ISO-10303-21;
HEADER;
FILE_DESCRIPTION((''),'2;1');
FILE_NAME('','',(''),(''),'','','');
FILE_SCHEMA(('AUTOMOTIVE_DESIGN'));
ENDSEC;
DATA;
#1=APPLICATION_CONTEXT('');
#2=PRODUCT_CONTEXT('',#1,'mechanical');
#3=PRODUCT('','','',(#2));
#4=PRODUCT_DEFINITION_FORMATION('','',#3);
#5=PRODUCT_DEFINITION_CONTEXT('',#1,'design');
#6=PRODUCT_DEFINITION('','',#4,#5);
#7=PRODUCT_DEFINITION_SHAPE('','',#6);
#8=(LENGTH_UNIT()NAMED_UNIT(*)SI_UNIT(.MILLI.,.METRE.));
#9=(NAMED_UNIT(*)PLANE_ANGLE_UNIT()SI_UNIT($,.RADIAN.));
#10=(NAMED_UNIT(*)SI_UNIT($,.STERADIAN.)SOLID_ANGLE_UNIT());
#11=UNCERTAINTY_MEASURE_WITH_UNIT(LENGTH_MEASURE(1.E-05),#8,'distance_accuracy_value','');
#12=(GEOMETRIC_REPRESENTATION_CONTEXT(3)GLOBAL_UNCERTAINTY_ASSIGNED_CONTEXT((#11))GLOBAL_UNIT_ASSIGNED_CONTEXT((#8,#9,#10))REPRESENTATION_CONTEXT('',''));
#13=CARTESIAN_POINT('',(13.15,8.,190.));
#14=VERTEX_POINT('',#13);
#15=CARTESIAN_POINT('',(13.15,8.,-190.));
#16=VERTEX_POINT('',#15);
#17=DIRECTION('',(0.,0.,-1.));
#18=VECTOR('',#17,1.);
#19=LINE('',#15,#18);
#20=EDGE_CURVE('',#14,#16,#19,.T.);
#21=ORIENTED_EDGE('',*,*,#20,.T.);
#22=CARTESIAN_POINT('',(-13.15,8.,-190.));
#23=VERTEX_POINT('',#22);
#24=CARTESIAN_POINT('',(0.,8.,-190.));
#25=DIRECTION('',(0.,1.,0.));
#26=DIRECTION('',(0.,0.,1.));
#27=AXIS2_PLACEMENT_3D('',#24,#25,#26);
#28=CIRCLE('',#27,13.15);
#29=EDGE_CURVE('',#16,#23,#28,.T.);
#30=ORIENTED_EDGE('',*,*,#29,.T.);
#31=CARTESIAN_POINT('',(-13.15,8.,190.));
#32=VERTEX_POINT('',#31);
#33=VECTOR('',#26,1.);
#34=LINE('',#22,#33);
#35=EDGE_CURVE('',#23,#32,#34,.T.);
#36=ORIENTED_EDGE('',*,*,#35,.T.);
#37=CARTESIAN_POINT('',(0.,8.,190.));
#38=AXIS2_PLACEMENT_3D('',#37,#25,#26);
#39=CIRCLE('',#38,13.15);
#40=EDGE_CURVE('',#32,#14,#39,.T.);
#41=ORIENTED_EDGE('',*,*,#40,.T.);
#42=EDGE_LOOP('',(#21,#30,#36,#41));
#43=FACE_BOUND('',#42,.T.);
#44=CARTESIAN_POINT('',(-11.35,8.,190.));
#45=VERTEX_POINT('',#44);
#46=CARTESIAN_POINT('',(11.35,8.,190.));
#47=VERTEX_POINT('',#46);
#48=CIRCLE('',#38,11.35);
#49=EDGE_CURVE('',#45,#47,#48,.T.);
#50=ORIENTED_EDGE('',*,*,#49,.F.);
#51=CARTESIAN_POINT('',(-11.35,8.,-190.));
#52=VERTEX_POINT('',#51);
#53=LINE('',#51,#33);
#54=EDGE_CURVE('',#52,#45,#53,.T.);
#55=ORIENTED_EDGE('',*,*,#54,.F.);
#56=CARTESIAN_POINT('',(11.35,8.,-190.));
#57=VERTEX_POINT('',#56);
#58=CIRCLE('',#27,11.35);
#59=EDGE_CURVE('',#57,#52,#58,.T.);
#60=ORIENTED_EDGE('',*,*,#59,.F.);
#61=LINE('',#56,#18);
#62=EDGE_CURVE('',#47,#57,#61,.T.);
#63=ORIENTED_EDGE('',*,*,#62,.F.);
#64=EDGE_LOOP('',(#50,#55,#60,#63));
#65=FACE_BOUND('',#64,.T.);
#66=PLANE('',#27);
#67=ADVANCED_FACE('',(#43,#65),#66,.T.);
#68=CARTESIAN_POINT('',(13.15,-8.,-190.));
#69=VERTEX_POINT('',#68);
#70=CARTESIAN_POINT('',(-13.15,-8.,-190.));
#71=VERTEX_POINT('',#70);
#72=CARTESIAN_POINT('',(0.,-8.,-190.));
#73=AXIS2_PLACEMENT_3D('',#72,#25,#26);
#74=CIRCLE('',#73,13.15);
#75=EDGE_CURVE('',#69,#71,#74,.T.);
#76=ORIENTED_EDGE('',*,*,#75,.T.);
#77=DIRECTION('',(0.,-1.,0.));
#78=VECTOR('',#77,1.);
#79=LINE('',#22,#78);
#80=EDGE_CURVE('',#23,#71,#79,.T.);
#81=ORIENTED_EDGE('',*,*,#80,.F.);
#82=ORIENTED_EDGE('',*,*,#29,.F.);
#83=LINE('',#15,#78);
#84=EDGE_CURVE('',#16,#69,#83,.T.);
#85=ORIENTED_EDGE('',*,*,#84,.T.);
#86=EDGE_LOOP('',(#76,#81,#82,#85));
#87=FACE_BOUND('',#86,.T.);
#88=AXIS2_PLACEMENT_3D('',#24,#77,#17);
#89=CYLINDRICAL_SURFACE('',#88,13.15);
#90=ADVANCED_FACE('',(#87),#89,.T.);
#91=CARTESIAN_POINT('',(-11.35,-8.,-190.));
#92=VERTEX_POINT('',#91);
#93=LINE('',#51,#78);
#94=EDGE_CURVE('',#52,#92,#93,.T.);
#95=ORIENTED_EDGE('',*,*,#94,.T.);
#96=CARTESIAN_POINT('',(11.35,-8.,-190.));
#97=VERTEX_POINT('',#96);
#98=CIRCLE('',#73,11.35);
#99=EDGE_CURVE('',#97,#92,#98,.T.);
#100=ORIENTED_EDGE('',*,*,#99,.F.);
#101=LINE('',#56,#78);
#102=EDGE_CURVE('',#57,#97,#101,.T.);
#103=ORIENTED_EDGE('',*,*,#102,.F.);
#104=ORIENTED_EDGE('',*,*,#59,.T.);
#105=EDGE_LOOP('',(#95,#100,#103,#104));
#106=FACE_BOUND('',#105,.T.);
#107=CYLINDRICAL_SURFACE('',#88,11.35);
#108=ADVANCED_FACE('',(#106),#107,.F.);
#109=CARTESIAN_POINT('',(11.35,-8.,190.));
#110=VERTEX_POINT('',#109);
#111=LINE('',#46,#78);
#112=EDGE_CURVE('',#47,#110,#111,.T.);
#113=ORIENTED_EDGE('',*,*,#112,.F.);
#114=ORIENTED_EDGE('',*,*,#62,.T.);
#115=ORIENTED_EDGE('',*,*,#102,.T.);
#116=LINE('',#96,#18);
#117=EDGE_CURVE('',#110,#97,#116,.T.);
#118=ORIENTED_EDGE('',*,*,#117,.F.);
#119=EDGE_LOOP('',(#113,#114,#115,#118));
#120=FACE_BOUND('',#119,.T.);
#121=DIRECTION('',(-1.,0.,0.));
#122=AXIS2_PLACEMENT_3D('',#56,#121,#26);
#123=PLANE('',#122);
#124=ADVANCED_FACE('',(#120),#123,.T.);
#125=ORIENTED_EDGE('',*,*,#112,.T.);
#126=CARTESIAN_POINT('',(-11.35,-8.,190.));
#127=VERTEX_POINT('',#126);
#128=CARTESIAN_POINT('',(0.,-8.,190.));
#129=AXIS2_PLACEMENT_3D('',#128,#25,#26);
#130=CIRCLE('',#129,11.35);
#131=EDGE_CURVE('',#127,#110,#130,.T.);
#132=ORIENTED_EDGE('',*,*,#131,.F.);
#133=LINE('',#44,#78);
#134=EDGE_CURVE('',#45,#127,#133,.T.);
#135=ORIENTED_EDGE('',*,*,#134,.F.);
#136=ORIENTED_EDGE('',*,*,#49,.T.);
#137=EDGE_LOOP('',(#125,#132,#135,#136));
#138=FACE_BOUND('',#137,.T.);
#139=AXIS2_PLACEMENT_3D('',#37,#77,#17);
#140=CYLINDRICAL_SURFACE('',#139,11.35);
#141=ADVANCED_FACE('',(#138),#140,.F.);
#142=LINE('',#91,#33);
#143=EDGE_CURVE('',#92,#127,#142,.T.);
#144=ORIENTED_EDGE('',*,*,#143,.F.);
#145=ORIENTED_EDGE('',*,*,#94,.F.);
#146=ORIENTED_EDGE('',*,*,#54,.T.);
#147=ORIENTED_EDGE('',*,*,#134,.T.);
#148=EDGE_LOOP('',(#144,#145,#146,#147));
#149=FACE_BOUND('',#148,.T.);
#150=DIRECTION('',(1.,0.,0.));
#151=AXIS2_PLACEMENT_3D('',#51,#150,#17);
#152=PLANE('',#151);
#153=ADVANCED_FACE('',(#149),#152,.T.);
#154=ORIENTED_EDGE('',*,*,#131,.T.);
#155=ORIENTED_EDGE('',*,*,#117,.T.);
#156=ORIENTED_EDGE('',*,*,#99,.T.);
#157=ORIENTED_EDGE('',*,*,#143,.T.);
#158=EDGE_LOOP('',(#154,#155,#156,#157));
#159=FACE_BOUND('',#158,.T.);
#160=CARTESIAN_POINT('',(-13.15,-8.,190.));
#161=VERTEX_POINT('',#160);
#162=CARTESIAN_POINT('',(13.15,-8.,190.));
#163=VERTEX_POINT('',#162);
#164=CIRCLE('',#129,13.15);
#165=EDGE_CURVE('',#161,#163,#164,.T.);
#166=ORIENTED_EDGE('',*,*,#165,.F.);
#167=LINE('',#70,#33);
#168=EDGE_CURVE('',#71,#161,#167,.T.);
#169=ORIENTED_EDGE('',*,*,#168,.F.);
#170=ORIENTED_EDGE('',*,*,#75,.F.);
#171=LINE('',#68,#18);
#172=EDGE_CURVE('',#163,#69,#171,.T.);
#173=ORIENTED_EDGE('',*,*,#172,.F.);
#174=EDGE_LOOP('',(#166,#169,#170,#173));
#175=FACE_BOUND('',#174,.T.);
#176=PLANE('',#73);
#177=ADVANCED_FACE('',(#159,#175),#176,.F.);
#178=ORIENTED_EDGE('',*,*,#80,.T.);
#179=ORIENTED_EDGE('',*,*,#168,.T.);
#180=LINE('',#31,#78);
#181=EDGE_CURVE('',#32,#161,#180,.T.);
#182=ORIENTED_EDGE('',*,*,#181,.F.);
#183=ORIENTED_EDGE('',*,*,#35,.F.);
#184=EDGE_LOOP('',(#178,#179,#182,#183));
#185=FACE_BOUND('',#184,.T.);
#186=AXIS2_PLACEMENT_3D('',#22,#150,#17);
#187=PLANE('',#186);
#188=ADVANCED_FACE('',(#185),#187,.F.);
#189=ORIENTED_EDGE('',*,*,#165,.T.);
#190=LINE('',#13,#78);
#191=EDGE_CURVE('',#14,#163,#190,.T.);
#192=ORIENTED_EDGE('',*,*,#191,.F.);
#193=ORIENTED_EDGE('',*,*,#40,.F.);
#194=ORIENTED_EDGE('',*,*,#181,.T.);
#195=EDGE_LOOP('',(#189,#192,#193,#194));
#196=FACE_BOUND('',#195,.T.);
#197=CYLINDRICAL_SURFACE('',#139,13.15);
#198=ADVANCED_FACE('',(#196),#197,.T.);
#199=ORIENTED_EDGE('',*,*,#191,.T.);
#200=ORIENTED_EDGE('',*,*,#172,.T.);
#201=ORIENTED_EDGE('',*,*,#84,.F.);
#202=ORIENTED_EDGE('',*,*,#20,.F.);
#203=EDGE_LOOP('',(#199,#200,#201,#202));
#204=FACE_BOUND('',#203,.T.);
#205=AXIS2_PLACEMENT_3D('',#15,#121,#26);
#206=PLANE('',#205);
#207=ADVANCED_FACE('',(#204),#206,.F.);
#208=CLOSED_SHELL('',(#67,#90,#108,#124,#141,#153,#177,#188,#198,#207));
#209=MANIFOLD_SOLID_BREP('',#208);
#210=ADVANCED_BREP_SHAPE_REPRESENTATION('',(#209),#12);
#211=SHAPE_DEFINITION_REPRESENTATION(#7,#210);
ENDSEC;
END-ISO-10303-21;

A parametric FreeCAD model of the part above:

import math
import FreeCAD as App
import Part
import Sketcher
from FreeCAD import Vector
Q = App.Units.Quantity

doc = App.newDocument("Part")
body = doc.addObject("PartDesign::Body", "Body")

# Sketch on XZ plane
sketch1 = doc.addObject("Sketcher::SketchObject", "Sketch")
body.addObject(sketch1)
sketch1.AttachmentSupport = (doc.XZ_Plane, [""])
sketch1.MapMode = "FlatFace"
sketch1.addGeometry(Part.LineSegment(Vector(13, 190, 0), Vector(13, -190, 0)), False)
sketch1.addGeometry(Part.ArcOfCircle(Part.Circle(Vector(0, -190, 0), Vector(0, 0, 1), 13), math.radians(180), math.radians(360)), False)
sketch1.addGeometry(Part.LineSegment(Vector(-13, -190, 0), Vector(-13, 190, 0)), False)
sketch1.addGeometry(Part.ArcOfCircle(Part.Circle(Vector(0, 190, 0), Vector(0, 0, 1), 13), math.radians(0), math.radians(180)), False)
sketch1.addGeometry(Part.LineSegment(Vector(11, -190, 0), Vector(11, 190, 0)), False)
sketch1.addGeometry(Part.ArcOfCircle(Part.Circle(Vector(0, 190, 0), Vector(0, 0, 1), 11), math.radians(0), math.radians(180)), False)
sketch1.addGeometry(Part.LineSegment(Vector(-11, 190, 0), Vector(-11, -190, 0)), False)
sketch1.addGeometry(Part.ArcOfCircle(Part.Circle(Vector(0, -190, 0), Vector(0, 0, 1), 11), math.radians(180), math.radians(360)), False)
sketch1.addConstraint(Sketcher.Constraint("Tangent", 0, 2, 1, 2))
sketch1.addConstraint(Sketcher.Constraint("Tangent", 1, 1, 2, 1))
sketch1.addConstraint(Sketcher.Constraint("Tangent", 2, 2, 3, 2))
sketch1.addConstraint(Sketcher.Constraint("Tangent", 3, 1, 0, 1))
sketch1.addConstraint(Sketcher.Constraint("Tangent", 4, 2, 5, 1))
sketch1.addConstraint(Sketcher.Constraint("Tangent", 5, 2, 6, 1))
sketch1.addConstraint(Sketcher.Constraint("Tangent", 6, 2, 7, 1))
sketch1.addConstraint(Sketcher.Constraint("Tangent", 7, 2, 4, 1))
sketch1.addConstraint(Sketcher.Constraint("Vertical", 0))
sketch1.addConstraint(Sketcher.Constraint("Vertical", 2))
sketch1.addConstraint(Sketcher.Constraint("Vertical", 4))
sketch1.addConstraint(Sketcher.Constraint("Vertical", 6))
sketch1.addConstraint(Sketcher.Constraint("Coincident", 5, 3, 3, 3))
sketch1.addConstraint(Sketcher.Constraint("Symmetric", 1, 3, 3, 3, -1, 1))
sketch1.addConstraint(Sketcher.Constraint("Horizontal", 7, 3, 0, 2))
sketch1.addConstraint(Sketcher.Constraint("DistanceY", 0, 2, 0, 1, Q("380 mm")))
sketch1.addConstraint(Sketcher.Constraint("Radius", 1, Q("13.15 mm")))
sketch1.addConstraint(Sketcher.Constraint("Radius", 5, Q("11.35 mm")))
pad1 = doc.addObject("PartDesign::Pad", "Pad")
body.addObject(pad1)
pad1.Profile = sketch1
pad1.Length = 16
pad1.Midplane = True

doc.recompute()
